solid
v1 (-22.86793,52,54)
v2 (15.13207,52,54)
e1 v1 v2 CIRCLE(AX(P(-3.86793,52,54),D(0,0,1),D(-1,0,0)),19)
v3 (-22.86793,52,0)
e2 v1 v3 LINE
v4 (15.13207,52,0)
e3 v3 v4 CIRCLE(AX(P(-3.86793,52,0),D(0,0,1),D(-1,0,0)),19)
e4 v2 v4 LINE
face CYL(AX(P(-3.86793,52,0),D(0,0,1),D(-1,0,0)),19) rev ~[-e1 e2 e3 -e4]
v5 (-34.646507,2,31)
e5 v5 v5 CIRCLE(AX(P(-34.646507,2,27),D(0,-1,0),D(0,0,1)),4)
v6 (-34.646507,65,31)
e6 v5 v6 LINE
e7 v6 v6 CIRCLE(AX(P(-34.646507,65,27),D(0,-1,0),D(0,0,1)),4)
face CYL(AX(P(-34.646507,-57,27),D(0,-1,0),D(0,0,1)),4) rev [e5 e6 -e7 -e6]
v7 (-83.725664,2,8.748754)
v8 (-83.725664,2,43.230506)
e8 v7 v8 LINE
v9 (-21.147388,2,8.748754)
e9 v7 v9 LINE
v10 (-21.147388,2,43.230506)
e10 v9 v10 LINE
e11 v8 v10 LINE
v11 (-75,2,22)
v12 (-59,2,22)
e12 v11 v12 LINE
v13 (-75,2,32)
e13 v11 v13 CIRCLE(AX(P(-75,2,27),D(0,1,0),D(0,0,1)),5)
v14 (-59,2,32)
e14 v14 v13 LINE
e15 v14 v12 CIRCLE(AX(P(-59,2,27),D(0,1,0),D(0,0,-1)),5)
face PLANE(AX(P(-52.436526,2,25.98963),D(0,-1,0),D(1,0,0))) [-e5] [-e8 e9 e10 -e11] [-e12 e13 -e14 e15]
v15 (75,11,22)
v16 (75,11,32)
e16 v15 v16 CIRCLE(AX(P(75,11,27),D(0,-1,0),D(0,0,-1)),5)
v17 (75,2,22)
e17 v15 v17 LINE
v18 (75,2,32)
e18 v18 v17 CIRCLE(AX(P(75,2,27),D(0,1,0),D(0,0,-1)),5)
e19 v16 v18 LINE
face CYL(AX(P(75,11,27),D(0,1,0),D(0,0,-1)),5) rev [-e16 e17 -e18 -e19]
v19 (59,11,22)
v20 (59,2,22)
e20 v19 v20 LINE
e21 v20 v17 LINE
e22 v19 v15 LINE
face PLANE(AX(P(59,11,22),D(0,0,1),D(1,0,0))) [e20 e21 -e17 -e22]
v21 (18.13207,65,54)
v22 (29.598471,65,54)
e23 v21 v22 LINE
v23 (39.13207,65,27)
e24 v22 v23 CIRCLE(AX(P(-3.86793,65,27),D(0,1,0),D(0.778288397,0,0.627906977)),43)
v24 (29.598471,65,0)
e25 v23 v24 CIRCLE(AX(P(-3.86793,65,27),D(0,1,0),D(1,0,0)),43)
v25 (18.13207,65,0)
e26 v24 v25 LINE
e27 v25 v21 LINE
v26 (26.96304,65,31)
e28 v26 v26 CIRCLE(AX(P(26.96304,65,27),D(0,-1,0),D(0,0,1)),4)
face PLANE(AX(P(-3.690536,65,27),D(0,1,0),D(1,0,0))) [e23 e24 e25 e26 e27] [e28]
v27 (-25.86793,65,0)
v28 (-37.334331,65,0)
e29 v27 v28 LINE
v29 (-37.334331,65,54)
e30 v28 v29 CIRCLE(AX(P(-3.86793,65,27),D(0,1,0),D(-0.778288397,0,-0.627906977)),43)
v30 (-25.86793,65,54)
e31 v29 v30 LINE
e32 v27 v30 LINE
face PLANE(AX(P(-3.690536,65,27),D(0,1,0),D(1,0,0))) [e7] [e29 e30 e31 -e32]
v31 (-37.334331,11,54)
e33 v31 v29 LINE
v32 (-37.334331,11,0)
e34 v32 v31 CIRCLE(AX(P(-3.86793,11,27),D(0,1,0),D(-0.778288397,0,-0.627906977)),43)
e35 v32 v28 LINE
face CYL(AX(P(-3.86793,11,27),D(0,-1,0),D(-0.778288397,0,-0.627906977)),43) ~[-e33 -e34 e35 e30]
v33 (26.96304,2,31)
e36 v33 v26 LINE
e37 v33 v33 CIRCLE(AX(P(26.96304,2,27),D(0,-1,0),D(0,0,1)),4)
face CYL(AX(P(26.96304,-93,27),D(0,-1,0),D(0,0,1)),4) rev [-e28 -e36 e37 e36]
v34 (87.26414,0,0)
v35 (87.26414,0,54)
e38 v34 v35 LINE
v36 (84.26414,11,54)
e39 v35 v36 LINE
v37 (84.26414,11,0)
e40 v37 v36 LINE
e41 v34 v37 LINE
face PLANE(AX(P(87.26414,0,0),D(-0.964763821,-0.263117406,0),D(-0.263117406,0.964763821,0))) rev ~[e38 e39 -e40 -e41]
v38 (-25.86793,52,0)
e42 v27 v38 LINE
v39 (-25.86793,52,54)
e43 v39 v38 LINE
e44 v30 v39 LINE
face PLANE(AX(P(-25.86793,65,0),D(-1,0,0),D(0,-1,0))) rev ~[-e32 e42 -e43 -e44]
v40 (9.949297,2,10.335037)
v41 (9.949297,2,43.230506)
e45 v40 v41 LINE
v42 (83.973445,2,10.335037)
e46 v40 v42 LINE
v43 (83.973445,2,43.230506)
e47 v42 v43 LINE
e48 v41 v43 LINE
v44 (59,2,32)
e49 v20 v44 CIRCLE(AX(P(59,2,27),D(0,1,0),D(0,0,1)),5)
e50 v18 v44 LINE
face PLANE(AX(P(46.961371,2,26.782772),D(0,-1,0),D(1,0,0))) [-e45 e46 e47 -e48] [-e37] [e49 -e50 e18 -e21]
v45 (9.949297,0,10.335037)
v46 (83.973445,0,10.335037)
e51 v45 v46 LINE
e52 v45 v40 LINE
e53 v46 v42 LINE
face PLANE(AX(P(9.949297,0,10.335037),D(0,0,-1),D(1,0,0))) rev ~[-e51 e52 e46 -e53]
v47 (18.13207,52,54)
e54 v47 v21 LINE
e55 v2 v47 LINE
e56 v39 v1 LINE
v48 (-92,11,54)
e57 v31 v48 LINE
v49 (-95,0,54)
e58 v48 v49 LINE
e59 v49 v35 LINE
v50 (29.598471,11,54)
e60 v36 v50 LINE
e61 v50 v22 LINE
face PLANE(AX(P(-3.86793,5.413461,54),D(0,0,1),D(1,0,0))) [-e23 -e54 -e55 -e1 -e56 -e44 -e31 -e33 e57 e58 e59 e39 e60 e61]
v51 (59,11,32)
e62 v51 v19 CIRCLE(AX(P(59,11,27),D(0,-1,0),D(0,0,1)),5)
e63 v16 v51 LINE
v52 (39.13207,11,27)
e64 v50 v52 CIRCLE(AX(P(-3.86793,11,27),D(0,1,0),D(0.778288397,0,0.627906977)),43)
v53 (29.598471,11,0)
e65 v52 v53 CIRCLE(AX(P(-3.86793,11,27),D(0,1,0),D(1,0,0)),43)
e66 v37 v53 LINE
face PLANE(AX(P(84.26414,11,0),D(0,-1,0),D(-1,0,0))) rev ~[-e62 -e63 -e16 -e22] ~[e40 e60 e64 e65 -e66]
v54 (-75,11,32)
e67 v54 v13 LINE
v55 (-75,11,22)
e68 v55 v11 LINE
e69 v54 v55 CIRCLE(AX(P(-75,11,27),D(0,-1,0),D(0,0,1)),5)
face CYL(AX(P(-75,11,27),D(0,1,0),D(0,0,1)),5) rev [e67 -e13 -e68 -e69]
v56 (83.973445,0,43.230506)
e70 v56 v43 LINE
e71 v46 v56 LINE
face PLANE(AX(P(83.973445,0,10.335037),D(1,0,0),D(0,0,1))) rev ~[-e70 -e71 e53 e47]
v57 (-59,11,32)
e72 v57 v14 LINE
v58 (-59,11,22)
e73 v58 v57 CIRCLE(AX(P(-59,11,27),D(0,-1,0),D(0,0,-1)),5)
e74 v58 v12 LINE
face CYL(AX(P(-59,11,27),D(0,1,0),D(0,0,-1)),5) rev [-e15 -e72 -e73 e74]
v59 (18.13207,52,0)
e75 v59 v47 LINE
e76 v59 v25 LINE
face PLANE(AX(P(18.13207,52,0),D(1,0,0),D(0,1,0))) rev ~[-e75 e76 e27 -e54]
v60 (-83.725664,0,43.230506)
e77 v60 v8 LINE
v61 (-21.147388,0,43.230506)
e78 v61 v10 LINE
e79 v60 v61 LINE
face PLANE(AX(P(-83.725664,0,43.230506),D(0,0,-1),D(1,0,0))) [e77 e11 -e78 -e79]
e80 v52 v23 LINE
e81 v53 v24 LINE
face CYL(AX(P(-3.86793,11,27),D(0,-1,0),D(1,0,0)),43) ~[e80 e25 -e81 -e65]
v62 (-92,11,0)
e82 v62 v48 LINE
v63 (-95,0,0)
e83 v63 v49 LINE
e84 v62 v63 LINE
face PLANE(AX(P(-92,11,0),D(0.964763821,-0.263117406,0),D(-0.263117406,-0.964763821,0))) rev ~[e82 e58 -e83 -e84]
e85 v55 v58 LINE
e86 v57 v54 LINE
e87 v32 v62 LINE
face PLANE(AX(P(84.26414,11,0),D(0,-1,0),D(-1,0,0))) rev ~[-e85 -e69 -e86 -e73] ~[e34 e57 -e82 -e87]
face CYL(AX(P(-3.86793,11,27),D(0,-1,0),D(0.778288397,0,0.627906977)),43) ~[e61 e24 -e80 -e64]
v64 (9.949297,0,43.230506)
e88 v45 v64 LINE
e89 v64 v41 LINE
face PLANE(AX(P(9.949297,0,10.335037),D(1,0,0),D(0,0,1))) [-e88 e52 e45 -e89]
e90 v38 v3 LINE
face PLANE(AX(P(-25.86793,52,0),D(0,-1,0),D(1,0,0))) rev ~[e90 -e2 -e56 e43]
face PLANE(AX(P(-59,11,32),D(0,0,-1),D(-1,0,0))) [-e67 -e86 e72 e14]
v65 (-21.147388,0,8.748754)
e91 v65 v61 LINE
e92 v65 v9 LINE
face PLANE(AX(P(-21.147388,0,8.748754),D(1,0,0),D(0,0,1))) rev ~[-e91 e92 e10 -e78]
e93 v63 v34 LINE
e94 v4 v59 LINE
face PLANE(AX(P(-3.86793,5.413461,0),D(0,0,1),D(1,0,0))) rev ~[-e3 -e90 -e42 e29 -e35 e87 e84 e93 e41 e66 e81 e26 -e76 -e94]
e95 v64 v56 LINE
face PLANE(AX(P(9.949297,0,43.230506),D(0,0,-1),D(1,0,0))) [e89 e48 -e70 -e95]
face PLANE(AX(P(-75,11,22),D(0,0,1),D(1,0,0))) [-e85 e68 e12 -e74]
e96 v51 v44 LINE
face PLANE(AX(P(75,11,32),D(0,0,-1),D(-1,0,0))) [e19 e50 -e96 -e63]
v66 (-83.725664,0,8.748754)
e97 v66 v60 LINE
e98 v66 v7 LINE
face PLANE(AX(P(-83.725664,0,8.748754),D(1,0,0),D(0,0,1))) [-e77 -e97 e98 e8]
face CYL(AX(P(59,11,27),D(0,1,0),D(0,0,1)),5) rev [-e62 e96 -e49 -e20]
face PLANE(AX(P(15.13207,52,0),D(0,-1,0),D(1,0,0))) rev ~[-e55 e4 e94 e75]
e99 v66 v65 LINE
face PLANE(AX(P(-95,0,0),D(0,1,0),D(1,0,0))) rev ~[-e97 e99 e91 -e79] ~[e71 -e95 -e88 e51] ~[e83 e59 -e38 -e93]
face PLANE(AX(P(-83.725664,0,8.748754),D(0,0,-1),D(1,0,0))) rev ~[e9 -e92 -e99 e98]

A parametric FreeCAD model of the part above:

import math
import FreeCAD as App
import Part
import Sketcher


def add_polygon(sketch, points):
    """Adds a closed chain of lines whose ends are joined by coincident constraints."""
    first, n = sketch.GeometryCount, len(points)
    for a, b in zip(points, points[1:] + points[:1]):
        sketch.addGeometry(Part.LineSegment(App.Vector(*a, 0), App.Vector(*b, 0)), False)
    for i in range(n):
        sketch.addConstraint(Sketcher.Constraint("Coincident", first + i, 2, first + (i + 1) % n, 1))

doc = App.newDocument("Part")
params = doc.addObject("Spreadsheet::Sheet", "Params")
for row, (alias, value) in enumerate([
    ("pad1_length", "54 mm"),
    ("sketch2_radius", "43 mm"),
    ("pad2_length", "54 mm"),
    ("sketch3_radius", "19 mm"),
    ("sketch3_width", "3 mm"),
    ("sketch3_height", "13 mm"),
    ("pocket1_length", "159.917374 mm"),
    ("sketch4_diameter", "8 mm"),
    ("sketch5_diameter", "8 mm"),
    ("sketch6_radius", "5 mm"),
    ("sketch6_width", "16 mm"),
    ("pocket4_length", "155 mm"),
    ("pocket5_length", "2 mm"),
], start=1):
    params.set(f"A{row}", alias)
    params.set(f"B{row}", "=" + value)
    params.setAlias(f"B{row}", alias)

body = doc.addObject("PartDesign::Body", "Body")

sketch1 = doc.addObject("Sketcher::SketchObject", "Sketch")
body.addObject(sketch1)
sketch1.AttachmentSupport = (doc.XY_Plane, [""])
sketch1.MapMode = "FlatFace"
add_polygon(sketch1, [(-95, 0), (87, 0), (84, 11), (-92, 11)])
sketch1.addConstraint([
    Sketcher.Constraint("Horizontal", 0),
    Sketcher.Constraint("Horizontal", 2),
    Sketcher.Constraint("PointOnObject", 0, 2, -1),
    Sketcher.Constraint("Equal", 1, 3),
    Sketcher.Constraint("DistanceY", -1, 1, 1, 2, 11.0),
    Sketcher.Constraint("DistanceX", 2, 2, -1, 1, 92.0),
    Sketcher.Constraint("DistanceX", 3, 2, -1, 1, 95.0),
    Sketcher.Constraint("DistanceX", 0, 1, 0, 2, 182.26414),
])
pad1 = doc.addObject("PartDesign::Pad", "Pad")
body.addObject(pad1)
pad1.Profile = sketch1
pad1.setExpression("Length", "Params.pad1_length")

sketch2 = doc.addObject("Sketcher::SketchObject", "Sketch001")
body.addObject(sketch2)
sketch2.AttachmentSupport = (doc.XZ_Plane, [""])
sketch2.MapMode = "FlatFace"
sketch2.AttachmentOffset = App.Placement(App.Vector(0, 0, -11), App.Rotation())
sketch2.addGeometry([
    Part.LineSegment(App.Vector(-37, 54, 0), App.Vector(30, 54, 0)),
    Part.ArcOfCircle(Part.Circle(App.Vector(-4, 27, 0), App.Vector(0, 0, 1), 43), math.radians(0), math.radians(39)),
    Part.ArcOfCircle(Part.Circle(App.Vector(-4, 27, 0), App.Vector(0, 0, 1), 43), math.radians(-39), math.radians(0)),
    Part.LineSegment(App.Vector(30, 0, 0), App.Vector(-37, 0, 0)),
    Part.ArcOfCircle(Part.Circle(App.Vector(-4, 27, 0), App.Vector(0, 0, 1), 43), math.radians(141), math.radians(219)),
], False)
sketch2.addConstraint([
    Sketcher.Constraint("Coincident", 0, 2, 1, 2),
    Sketcher.Constraint("Tangent", 1, 1, 2, 2),
    Sketcher.Constraint("Coincident", 2, 1, 3, 1),
    Sketcher.Constraint("Coincident", 3, 2, 4, 2),
    Sketcher.Constraint("Coincident", 4, 1, 0, 1),
    Sketcher.Constraint("Horizontal", 0),
    Sketcher.Constraint("Horizontal", 3),
    Sketcher.Constraint("Coincident", 4, 3, 1, 3),
    Sketcher.Constraint("Equal", 1, 2),
    Sketcher.Constraint("Equal", 2, 4),
    Sketcher.Constraint("PointOnObject", 2, 1, -1),
    Sketcher.Constraint("Horizontal", 4, 3, 1, 1),
    Sketcher.Constraint("Vertical", 0, 2, 2, 1),
    Sketcher.Constraint("Radius", 1, 43.0),
    Sketcher.Constraint("DistanceY", -1, 1, 1, 3, 27.0),
    Sketcher.Constraint("DistanceX", 1, 3, -1, 1, 3.86793),
])
sketch2.setExpression("Constraints[13]", "Params.sketch2_radius")
pad2 = doc.addObject("PartDesign::Pad", "Pad001")
body.addObject(pad2)
pad2.Profile = sketch2
pad2.setExpression("Length", "Params.pad2_length")
pad2.Reversed = True

sketch3 = doc.addObject("Sketcher::SketchObject", "Sketch002")
body.addObject(sketch3)
sketch3.AttachmentSupport = (doc.XY_Plane, [""])
sketch3.MapMode = "FlatFace"
sketch3.addGeometry([
    Part.LineSegment(App.Vector(15.1, 52, 0), App.Vector(18.1, 52, 0)),
    Part.LineSegment(App.Vector(18.1, 52, 0), App.Vector(18.1, 65, 0)),
    Part.LineSegment(App.Vector(18.1, 65, 0), App.Vector(-25.9, 65, 0)),
    Part.LineSegment(App.Vector(-25.9, 65, 0), App.Vector(-25.9, 52, 0)),
    Part.LineSegment(App.Vector(-25.9, 52, 0), App.Vector(-22.9, 52, 0)),
    Part.ArcOfCircle(Part.Circle(App.Vector(-3.9, 52, 0), App.Vector(0, 0, 1), 19), math.radians(180), math.radians(360)),
], False)
sketch3.addConstraint([
    Sketcher.Constraint("Coincident", 0, 2, 1, 1),
    Sketcher.Constraint("Coincident", 1, 2, 2, 1),
    Sketcher.Constraint("Coincident", 2, 2, 3, 1),
    Sketcher.Constraint("Coincident", 3, 2, 4, 1),
    Sketcher.Constraint("Coincident", 4, 2, 5, 1),
    Sketcher.Constraint("Coincident", 5, 2, 0, 1),
    Sketcher.Constraint("Horizontal", 0),
    Sketcher.Constraint("Vertical", 1),
    Sketcher.Constraint("Horizontal", 2),
    Sketcher.Constraint("Vertical", 3),
    Sketcher.Constraint("Horizontal", 4),
    Sketcher.Constraint("Horizontal", 5, 3, 0, 2),
    Sketcher.Constraint("Horizontal", 0, 2, 3, 2),
    Sketcher.Constraint("Equal", 0, 4),
    Sketcher.Constraint("Radius", 5, 19.0),
    Sketcher.Constraint("DistanceX", 0, 1, 0, 2, 3.0),
    Sketcher.Constraint("DistanceY", 1, 1, 1, 2, 13.0),
    Sketcher.Constraint("DistanceY", -1, 1, 5, 3, 52.0),
    Sketcher.Constraint("DistanceX", 5, 3, -1, 1, 3.86793),
])
sketch3.setExpression("Constraints[14]", "Params.sketch3_radius")
sketch3.setExpression("Constraints[15]", "Params.sketch3_width")
sketch3.setExpression("Constraints[16]", "Params.sketch3_height")
pocket1 = doc.addObject("PartDesign::Pocket", "Pocket")
body.addObject(pocket1)
pocket1.Profile = sketch3
pocket1.setExpression("Length", "Params.pocket1_length")
pocket1.Midplane = True

sketch4 = doc.addObject("Sketcher::SketchObject", "Sketch003")
body.addObject(sketch4)
sketch4.AttachmentSupport = (doc.XZ_Plane, [""])
sketch4.MapMode = "FlatFace"
sketch4.addGeometry(Part.Circle(App.Vector(-34.6, 27, 0), App.Vector(0, 0, 1), 4), False)
sketch4.addConstraint([
    Sketcher.Constraint("Diameter", 0, 8.0),
    Sketcher.Constraint("DistanceY", -1, 1, 0, 3, 27.0),
    Sketcher.Constraint("DistanceX", 0, 3, -1, 1, 34.646507),
])
sketch4.setExpression("Constraints[0]", "Params.sketch4_diameter")
pocket2 = doc.addObject("PartDesign::Pocket", "Pocket001")
body.addObject(pocket2)
pocket2.Profile = sketch4
pocket2.Type = "ThroughAll"
pocket2.Midplane = True

sketch5 = doc.addObject("Sketcher::SketchObject", "Sketch004")
body.addObject(sketch5)
sketch5.AttachmentSupport = (doc.XZ_Plane, [""])
sketch5.MapMode = "FlatFace"
sketch5.addGeometry(Part.Circle(App.Vector(27, 27, 0), App.Vector(0, 0, 1), 4), False)
sketch5.addConstraint([
    Sketcher.Constraint("Diameter", 0, 8.0),
    Sketcher.Constraint("DistanceY", -1, 1, 0, 3, 27.0),
    Sketcher.Constraint("DistanceX", -1, 1, 0, 3, 26.96304),
])
sketch5.setExpression("Constraints[0]", "Params.sketch5_diameter")
pocket3 = doc.addObject("PartDesign::Pocket", "Pocket002")
body.addObject(pocket3)
pocket3.Profile = sketch5
pocket3.Type = "ThroughAll"
pocket3.Midplane = True

sketch6 = doc.addObject("Sketcher::SketchObject", "Sketch005")
body.addObject(sketch6)
sketch6.AttachmentSupport = (doc.XZ_Plane, [""])
sketch6.MapMode = "FlatFace"
sketch6.AttachmentOffset = App.Placement(App.Vector(0, 0, -11), App.Rotation())
sketch6.addGeometry([
    Part.LineSegment(App.Vector(59, 32, 0), App.Vector(75, 32, 0)),
    Part.ArcOfCircle(Part.Circle(App.Vector(75, 27, 0), App.Vector(0, 0, 1), 5), math.radians(-90), math.radians(90)),
    Part.LineSegment(App.Vector(75, 22, 0), App.Vector(59, 22, 0)),
    Part.ArcOfCircle(Part.Circle(App.Vector(59, 27, 0), App.Vector(0, 0, 1), 5), math.radians(90), math.radians(270)),
    Part.LineSegment(App.Vector(-75, 32, 0), App.Vector(-59, 32, 0)),
    Part.ArcOfCircle(Part.Circle(App.Vector(-59, 27, 0), App.Vector(0, 0, 1), 5), math.radians(-90), math.radians(90)),
    Part.LineSegment(App.Vector(-59, 22, 0), App.Vector(-75, 22, 0)),
    Part.ArcOfCircle(Part.Circle(App.Vector(-75, 27, 0), App.Vector(0, 0, 1), 5), math.radians(90), math.radians(270)),
], False)
sketch6.addConstraint([
    Sketcher.Constraint("Tangent", 0, 2, 1, 2),
    Sketcher.Constraint("Tangent", 1, 1, 2, 1),
    Sketcher.Constraint("Tangent", 2, 2, 3, 2),
    Sketcher.Constraint("Tangent", 3, 1, 0, 1),
    Sketcher.Constraint("Tangent", 4, 2, 5, 2),
    Sketcher.Constraint("Tangent", 5, 1, 6, 1),
    Sketcher.Constraint("Tangent", 6, 2, 7, 2),
    Sketcher.Constraint("Tangent", 7, 1, 4, 1),
    Sketcher.Constraint("Horizontal", 0),
    Sketcher.Constraint("Horizontal", 2),
    Sketcher.Constraint("Horizontal", 4),
    Sketcher.Constraint("Horizontal", 6),
    Sketcher.Constraint("Equal", 3, 5),
    Sketcher.Constraint("Symmetric", 3, 3, 5, 3, -2),
    Sketcher.Constraint("Equal", 2, 4),
    Sketcher.Constraint("Radius", 1, 5.0),
    Sketcher.Constraint("DistanceX", 0, 1, 0, 2, 16.0),
    Sketcher.Constraint("DistanceX", -1, 1, 1, 3, 75.0),
    Sketcher.Constraint("DistanceY", -1, 1, 1, 3, 27.0),
])
sketch6.setExpression("Constraints[15]", "Params.sketch6_radius")
sketch6.setExpression("Constraints[16]", "Params.sketch6_width")
pocket4 = doc.addObject("PartDesign::Pocket", "Pocket003")
body.addObject(pocket4)
pocket4.Profile = sketch6
pocket4.setExpression("Length", "Params.pocket4_length")
pocket4.Reversed = True

sketch7 = doc.addObject("Sketcher::SketchObject", "Sketch006")
body.addObject(sketch7)
sketch7.AttachmentSupport = (doc.XZ_Plane, [""])
sketch7.MapMode = "FlatFace"
add_polygon(sketch7, [(-84, 43), (-84, 9), (-21, 9), (-21, 43)])
add_polygon(sketch7, [(10, 43), (10, 10), (84, 10), (84, 43)])
sketch7.addConstraint([
    Sketcher.Constraint("Vertical", 0),
    Sketcher.Constraint("Horizontal", 1),
    Sketcher.Constraint("Vertical", 2),
    Sketcher.Constraint("Horizontal", 3),
    Sketcher.Constraint("Vertical", 4),
    Sketcher.Constraint("Horizontal", 5),
    Sketcher.Constraint("Vertical", 6),
    Sketcher.Constraint("Horizontal", 7),
    Sketcher.Constraint("Horizontal", 3, 2, 6, 2),
    Sketcher.Constraint("DistanceX", 5, 1, 5, 2, 74.024149),
    Sketcher.Constraint("DistanceY", 4, 2, 4, 1, 32.895469),
    Sketcher.Constraint("DistanceX", 1, 1, 1, 2, 62.578276),
    Sketcher.Constraint("DistanceY", 0, 2, 0, 1, 34.481752),
    Sketcher.Constraint("DistanceX", 1, 2, -1, 1, 21.147388),
    Sketcher.Constraint("DistanceX", 0, 2, 4, 2, 93.674961),
    Sketcher.Constraint("DistanceY", -1, 1, 0, 2, 8.748754),
])
pocket5 = doc.addObject("PartDesign::Pocket", "Pocket004")
body.addObject(pocket5)
pocket5.Profile = sketch7
pocket5.setExpression("Length", "Params.pocket5_length")

doc.recompute()
